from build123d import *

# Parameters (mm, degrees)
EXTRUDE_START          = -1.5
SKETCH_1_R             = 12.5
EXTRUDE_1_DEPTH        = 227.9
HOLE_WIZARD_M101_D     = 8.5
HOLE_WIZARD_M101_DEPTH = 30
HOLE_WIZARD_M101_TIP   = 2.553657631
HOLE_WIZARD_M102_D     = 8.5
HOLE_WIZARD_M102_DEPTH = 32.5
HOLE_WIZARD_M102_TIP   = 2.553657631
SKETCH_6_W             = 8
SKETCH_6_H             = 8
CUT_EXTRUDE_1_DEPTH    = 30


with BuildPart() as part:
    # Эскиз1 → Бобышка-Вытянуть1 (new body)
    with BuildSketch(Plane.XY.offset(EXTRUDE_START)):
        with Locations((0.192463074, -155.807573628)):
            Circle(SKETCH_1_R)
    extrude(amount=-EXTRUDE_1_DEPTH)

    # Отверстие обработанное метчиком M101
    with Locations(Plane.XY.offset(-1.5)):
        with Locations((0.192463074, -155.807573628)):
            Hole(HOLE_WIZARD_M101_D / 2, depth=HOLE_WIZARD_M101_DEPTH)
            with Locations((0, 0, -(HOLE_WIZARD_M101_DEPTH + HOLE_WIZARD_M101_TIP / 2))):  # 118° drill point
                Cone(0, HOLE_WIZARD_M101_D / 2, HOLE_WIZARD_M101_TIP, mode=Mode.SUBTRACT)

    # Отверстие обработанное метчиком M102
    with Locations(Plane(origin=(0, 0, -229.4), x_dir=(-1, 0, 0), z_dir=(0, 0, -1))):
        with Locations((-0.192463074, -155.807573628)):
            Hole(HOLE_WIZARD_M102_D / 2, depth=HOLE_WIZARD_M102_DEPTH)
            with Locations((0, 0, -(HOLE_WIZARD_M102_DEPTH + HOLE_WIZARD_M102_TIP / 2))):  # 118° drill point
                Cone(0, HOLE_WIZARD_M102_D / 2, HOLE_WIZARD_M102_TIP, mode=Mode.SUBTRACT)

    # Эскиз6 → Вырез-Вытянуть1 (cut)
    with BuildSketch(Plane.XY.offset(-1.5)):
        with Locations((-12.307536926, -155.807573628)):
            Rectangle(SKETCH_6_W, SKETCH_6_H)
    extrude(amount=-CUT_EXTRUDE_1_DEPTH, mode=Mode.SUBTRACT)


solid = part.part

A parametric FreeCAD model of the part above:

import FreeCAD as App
import Part
import Sketcher
Q = App.Units.Quantity

doc = App.newDocument("Part")
body = doc.addObject("PartDesign::Body", "Body")

sketch1 = doc.addObject("Sketcher::SketchObject", "Sketch")
body.addObject(sketch1)
sketch1.AttachmentSupport = (doc.XY_Plane, [""])
sketch1.MapMode = "FlatFace"
sketch1.AttachmentOffset = App.Placement(App.Vector(0, 0, -1.5), App.Rotation())
sketch1.addGeometry(Part.Circle(App.Vector(0.192463, -155.807574, 0), App.Vector(0, 0, 1), 12.5), False)
sketch1.addConstraint([
    Sketcher.Constraint("Diameter", 0, Q("25 mm")),
    Sketcher.Constraint("DistanceX", -1, 1, 0, 3, Q("0.192463 mm")),
    Sketcher.Constraint("DistanceY", 0, 3, -1, 1, Q("155.807574 mm")),
])
pad1 = doc.addObject("PartDesign::Pad", "Pad")
body.addObject(pad1)
pad1.Profile = sketch1
pad1.Length = 227.9
pad1.Reversed = True

sketch2 = doc.addObject("Sketcher::SketchObject", "Sketch001")
body.addObject(sketch2)
sketch2.AttachmentSupport = (doc.XY_Plane, [""])
sketch2.MapMode = "FlatFace"
sketch2.AttachmentOffset = App.Placement(App.Vector(0, 0, -1.5), App.Rotation())
sketch2.addGeometry(Part.Circle(App.Vector(0.192463, -155.807574, 0), App.Vector(0, 0, 1), 4.25), False)
sketch2.addConstraint([
    Sketcher.Constraint("Diameter", 0, Q("8.5 mm")),
    Sketcher.Constraint("DistanceX", -1, 1, 0, 3, Q("0.192463 mm")),
    Sketcher.Constraint("DistanceY", 0, 3, -1, 1, Q("155.807574 mm")),
])
doc.recompute()
hole = doc.addObject("PartDesign::Hole", "Hole")
body.addObject(hole)
hole.Profile = sketch2
hole.ThreadType = "None"
hole.Diameter = 8.5
hole.DepthType = "Dimension"
hole.Depth = 30
hole.DrillPoint = "Angled"
hole.DrillPointAngle = 118

sketch3 = doc.addObject("Sketcher::SketchObject", "Sketch002")
body.addObject(sketch3)
sketch3.AttachmentSupport = (doc.XY_Plane, [""])
sketch3.MapMode = "FlatFace"
sketch3.AttachmentOffset = App.Placement(App.Vector(0, 0, -229.4), App.Rotation())
sketch3.addGeometry(Part.Circle(App.Vector(0.192463, -155.807574, 0), App.Vector(0, 0, 1), 4.25), False)
sketch3.addConstraint([
    Sketcher.Constraint("Diameter", 0, Q("8.5 mm")),
    Sketcher.Constraint("DistanceX", -1, 1, 0, 3, Q("0.192463 mm")),
    Sketcher.Constraint("DistanceY", 0, 3, -1, 1, Q("155.807574 mm")),
])
doc.recompute()
hole2 = doc.addObject("PartDesign::Hole", "Hole001")
body.addObject(hole2)
hole2.Profile = sketch3
hole2.ThreadType = "None"
hole2.Diameter = 8.5
hole2.DepthType = "Dimension"
hole2.Depth = 32.5
hole2.DrillPoint = "Angled"
hole2.DrillPointAngle = 118
hole2.Reversed = True

sketch4 = doc.addObject("Sketcher::SketchObject", "Sketch003")
body.addObject(sketch4)
sketch4.AttachmentSupport = (doc.XY_Plane, [""])
sketch4.MapMode = "FlatFace"
sketch4.AttachmentOffset = App.Placement(App.Vector(0, 0, -1.5), App.Rotation())
sketch4.addGeometry([
    Part.LineSegment(App.Vector(-16.307537, -151.807574, 0), App.Vector(-16.307537, -159.807574, 0)),
    Part.LineSegment(App.Vector(-16.307537, -159.807574, 0), App.Vector(-8.307537, -159.807574, 0)),
    Part.LineSegment(App.Vector(-8.307537, -159.807574, 0), App.Vector(-8.307537, -151.807574, 0)),
    Part.LineSegment(App.Vector(-8.307537, -151.807574, 0), App.Vector(-16.307537, -151.807574, 0)),
], False)
sketch4.addConstraint([
    Sketcher.Constraint("Coincident", 0, 2, 1, 1),
    Sketcher.Constraint("Coincident", 1, 2, 2, 1),
    Sketcher.Constraint("Coincident", 2, 2, 3, 1),
    Sketcher.Constraint("Coincident", 3, 2, 0, 1),
    Sketcher.Constraint("Vertical", 0),
    Sketcher.Constraint("Horizontal", 1),
    Sketcher.Constraint("Vertical", 2),
    Sketcher.Constraint("Horizontal", 3),
    Sketcher.Constraint("Equal", 3, 0),
    Sketcher.Constraint("DistanceX", 1, 1, 1, 2, Q("8 mm")),
    Sketcher.Constraint("DistanceX", 0, 2, -1, 1, Q("16.307537 mm")),
    Sketcher.Constraint("DistanceY", 0, 2, -1, 1, Q("159.807574 mm")),
])
pocket1 = doc.addObject("PartDesign::Pocket", "Pocket")
body.addObject(pocket1)
pocket1.Profile = sketch4
pocket1.Length = 30

doc.recompute()
